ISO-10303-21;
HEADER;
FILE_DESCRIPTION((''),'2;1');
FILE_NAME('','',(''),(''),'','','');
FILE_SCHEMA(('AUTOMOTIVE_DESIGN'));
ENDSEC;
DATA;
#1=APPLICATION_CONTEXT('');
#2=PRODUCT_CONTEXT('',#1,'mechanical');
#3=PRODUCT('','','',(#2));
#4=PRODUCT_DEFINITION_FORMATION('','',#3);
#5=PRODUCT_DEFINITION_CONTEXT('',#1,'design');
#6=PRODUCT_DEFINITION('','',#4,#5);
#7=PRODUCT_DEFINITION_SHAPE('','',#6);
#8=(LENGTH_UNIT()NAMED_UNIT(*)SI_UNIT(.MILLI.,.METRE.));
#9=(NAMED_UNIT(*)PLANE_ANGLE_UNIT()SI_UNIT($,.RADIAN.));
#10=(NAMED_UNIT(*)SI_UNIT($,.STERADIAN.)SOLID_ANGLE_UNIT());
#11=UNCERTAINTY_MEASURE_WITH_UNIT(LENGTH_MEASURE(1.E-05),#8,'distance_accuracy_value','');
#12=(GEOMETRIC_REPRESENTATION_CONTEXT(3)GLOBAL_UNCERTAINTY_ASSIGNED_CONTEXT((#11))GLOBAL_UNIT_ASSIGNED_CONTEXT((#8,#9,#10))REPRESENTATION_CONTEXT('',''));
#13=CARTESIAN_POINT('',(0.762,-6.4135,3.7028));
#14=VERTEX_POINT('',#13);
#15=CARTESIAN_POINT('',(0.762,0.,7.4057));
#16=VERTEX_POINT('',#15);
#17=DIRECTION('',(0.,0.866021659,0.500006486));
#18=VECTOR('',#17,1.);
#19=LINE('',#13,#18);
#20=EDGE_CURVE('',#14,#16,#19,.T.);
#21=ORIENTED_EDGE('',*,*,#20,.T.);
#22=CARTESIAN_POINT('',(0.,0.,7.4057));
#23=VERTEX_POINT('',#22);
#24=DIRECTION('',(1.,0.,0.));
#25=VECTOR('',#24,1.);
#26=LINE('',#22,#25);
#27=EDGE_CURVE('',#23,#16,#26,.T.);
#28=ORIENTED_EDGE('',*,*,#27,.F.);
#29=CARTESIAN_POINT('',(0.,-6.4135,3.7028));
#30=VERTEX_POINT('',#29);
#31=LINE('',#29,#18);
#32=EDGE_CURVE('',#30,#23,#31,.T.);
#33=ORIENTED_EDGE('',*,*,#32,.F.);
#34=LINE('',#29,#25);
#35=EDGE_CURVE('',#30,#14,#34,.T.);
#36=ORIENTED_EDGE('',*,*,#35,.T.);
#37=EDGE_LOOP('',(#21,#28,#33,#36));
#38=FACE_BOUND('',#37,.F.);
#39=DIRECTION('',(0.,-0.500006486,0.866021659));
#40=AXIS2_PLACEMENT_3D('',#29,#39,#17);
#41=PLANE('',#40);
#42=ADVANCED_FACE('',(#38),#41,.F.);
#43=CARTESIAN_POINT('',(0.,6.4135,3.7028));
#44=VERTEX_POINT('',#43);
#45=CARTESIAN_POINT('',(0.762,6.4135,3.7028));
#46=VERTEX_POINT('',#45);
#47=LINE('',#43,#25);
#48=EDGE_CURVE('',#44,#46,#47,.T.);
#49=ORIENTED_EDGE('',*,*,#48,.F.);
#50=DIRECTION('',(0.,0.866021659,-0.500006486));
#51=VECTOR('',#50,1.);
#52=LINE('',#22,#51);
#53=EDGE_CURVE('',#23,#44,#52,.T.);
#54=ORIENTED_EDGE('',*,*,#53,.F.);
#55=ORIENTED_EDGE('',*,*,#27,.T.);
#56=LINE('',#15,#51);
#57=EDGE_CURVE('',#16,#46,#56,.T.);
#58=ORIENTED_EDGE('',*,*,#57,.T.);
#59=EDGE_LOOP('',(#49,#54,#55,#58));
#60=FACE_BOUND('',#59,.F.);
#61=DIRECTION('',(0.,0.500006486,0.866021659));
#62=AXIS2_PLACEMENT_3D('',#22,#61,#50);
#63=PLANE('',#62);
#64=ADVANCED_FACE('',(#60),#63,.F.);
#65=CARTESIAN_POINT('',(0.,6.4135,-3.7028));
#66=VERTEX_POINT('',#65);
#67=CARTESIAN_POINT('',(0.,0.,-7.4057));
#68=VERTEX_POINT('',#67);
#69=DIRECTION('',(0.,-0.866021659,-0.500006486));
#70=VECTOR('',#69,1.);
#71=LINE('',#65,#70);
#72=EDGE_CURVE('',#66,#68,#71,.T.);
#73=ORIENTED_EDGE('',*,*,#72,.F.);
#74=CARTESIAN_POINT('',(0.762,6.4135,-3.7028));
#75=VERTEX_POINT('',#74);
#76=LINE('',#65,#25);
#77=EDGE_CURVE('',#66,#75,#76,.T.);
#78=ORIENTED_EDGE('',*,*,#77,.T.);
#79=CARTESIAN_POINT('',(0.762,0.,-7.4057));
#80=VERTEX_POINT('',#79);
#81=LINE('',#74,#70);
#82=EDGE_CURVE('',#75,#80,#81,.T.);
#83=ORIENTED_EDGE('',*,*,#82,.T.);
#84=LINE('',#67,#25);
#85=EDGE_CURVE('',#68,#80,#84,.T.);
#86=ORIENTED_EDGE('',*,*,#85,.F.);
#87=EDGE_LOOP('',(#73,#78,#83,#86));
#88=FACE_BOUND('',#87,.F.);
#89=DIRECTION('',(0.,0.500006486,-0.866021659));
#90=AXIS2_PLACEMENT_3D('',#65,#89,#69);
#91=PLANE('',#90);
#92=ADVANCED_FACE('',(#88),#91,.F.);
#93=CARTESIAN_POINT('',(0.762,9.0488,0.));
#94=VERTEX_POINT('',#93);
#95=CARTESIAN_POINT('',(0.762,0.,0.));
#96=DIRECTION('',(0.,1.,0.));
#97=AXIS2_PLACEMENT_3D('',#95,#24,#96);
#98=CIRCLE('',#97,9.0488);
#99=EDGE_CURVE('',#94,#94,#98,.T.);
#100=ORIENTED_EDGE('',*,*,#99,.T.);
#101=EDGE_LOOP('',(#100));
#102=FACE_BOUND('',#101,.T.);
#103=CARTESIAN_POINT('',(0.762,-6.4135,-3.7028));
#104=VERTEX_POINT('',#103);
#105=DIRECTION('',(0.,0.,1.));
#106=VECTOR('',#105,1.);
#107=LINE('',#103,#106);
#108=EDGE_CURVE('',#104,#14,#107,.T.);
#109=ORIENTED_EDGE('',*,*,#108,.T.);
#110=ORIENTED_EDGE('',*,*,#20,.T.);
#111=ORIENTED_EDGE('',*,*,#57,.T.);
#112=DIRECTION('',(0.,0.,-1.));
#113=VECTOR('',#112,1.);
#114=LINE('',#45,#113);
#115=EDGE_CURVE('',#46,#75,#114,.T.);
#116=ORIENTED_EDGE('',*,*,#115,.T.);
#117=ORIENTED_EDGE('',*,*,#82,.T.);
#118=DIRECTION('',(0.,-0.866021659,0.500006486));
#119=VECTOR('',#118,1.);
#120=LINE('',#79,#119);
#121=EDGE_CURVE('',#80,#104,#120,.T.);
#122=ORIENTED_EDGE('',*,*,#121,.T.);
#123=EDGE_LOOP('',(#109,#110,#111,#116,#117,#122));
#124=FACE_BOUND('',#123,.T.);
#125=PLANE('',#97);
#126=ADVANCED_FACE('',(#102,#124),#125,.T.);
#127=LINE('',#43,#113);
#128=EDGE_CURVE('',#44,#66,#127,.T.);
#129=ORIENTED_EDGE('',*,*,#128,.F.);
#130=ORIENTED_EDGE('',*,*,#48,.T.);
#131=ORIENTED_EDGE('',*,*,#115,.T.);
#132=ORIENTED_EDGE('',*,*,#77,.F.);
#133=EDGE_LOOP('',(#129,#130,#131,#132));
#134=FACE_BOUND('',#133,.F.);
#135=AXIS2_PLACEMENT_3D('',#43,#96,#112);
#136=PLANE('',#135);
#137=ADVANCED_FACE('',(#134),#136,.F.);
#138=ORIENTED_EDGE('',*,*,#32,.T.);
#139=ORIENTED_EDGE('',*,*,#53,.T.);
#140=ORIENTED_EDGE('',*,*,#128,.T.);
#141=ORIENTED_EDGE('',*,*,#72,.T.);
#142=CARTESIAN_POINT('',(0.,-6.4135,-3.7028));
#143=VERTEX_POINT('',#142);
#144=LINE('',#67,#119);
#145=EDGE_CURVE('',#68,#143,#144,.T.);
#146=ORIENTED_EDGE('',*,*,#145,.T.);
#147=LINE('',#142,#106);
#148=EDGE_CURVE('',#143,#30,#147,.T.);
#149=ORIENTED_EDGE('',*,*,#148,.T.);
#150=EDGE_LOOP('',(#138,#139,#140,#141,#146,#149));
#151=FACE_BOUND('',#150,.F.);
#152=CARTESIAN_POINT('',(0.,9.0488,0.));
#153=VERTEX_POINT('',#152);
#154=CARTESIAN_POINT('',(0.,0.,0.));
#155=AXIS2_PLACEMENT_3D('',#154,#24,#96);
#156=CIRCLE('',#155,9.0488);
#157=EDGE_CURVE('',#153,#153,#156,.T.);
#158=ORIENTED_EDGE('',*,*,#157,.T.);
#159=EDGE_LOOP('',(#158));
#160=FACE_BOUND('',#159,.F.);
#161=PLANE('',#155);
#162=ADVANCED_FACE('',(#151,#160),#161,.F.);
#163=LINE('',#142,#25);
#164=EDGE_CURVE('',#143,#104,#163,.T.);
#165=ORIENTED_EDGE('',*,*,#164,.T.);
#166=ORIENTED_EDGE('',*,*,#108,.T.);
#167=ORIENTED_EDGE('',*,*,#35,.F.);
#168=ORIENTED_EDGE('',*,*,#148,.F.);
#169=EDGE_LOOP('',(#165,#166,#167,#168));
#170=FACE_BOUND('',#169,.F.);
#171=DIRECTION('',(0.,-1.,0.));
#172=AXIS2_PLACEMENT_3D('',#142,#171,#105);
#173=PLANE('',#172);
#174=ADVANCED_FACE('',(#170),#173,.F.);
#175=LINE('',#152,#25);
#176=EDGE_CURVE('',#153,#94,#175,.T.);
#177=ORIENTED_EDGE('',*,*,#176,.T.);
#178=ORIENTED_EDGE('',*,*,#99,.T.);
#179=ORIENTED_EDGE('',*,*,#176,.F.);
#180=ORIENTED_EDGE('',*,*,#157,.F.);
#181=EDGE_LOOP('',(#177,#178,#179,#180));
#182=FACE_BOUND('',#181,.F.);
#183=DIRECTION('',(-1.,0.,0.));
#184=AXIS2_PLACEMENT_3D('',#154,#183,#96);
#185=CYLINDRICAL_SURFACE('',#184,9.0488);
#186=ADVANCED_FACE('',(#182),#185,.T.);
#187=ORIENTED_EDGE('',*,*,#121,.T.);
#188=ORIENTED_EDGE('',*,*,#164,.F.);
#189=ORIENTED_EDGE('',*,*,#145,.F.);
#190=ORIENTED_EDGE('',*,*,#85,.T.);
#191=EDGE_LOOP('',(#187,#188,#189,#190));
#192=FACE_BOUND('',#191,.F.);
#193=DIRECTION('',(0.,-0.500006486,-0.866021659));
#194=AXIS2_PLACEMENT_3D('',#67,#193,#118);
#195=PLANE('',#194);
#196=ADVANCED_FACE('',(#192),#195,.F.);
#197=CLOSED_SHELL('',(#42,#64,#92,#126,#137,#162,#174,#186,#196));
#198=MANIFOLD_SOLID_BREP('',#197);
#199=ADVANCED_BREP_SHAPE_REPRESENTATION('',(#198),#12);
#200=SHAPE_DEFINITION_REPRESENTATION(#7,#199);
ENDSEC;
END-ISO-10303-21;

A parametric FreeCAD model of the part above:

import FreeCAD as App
import Part
import Sketcher
Q = App.Units.Quantity


def add_polygon(sketch, points):
    """Adds a closed chain of lines whose ends are joined by coincident constraints."""
    first, n = sketch.GeometryCount, len(points)
    for a, b in zip(points, points[1:] + points[:1]):
        sketch.addGeometry(Part.LineSegment(App.Vector(*a, 0), App.Vector(*b, 0)), False)
    for i in range(n):
        sketch.addConstraint(Sketcher.Constraint("Coincident", first + i, 2, first + (i + 1) % n, 1))

doc = App.newDocument("Part")
body = doc.addObject("PartDesign::Body", "Body")

sketch1 = body.newObject("Sketcher::SketchObject", "Sketch")
sketch1.AttachmentSupport = (doc.getObject("YZ_Plane"), [""])
sketch1.MapMode = "FlatFace"
sketch1.addGeometry(Part.Circle(App.Vector(0, 0, 0), App.Vector(0, 0, 1), 9.0488), False)
add_polygon(sketch1, [(6.4135, 3.7028), (6.4135, -3.7028), (0, -7.4057), (-6.4135, -3.7028), (-6.4135, 3.7028), (0, 7.4057)])
sketch1.addConstraint(Sketcher.Constraint("Vertical", 1))
sketch1.addConstraint(Sketcher.Constraint("Vertical", 4))
sketch1.addConstraint(Sketcher.Constraint("Coincident", 0, 3, -1, 1))
sketch1.addConstraint(Sketcher.Constraint("Symmetric", 1, 2, 4, 2, -1, 1))
sketch1.addConstraint(Sketcher.Constraint("Symmetric", 2, 2, 5, 2, -1, 1))
sketch1.addConstraint(Sketcher.Constraint("PointOnObject", 2, 2, -2))
sketch1.addConstraint(Sketcher.Constraint("Parallel", 3, 6))
sketch1.addConstraint(Sketcher.Constraint("Horizontal", 1, 2, 3, 2))
sketch1.addConstraint(Sketcher.Constraint("Diameter", 0, Q("0.7125 in")))
sketch1.addConstraint(Sketcher.Constraint("Angle", 2, Q("-149.9996 deg")))
sketch1.addConstraint(Sketcher.Constraint("DistanceX", 3, 2, 1, 2, Q("0.505 in")))
sketch1.addConstraint(Sketcher.Constraint("DistanceY", 1, 2, 1, 1, Q("7.4056 mm")))
pad1 = body.newObject("PartDesign::Pad", "Pad")
pad1.Profile = sketch1
pad1.Length = Q("0.03 in")

doc.recompute()
